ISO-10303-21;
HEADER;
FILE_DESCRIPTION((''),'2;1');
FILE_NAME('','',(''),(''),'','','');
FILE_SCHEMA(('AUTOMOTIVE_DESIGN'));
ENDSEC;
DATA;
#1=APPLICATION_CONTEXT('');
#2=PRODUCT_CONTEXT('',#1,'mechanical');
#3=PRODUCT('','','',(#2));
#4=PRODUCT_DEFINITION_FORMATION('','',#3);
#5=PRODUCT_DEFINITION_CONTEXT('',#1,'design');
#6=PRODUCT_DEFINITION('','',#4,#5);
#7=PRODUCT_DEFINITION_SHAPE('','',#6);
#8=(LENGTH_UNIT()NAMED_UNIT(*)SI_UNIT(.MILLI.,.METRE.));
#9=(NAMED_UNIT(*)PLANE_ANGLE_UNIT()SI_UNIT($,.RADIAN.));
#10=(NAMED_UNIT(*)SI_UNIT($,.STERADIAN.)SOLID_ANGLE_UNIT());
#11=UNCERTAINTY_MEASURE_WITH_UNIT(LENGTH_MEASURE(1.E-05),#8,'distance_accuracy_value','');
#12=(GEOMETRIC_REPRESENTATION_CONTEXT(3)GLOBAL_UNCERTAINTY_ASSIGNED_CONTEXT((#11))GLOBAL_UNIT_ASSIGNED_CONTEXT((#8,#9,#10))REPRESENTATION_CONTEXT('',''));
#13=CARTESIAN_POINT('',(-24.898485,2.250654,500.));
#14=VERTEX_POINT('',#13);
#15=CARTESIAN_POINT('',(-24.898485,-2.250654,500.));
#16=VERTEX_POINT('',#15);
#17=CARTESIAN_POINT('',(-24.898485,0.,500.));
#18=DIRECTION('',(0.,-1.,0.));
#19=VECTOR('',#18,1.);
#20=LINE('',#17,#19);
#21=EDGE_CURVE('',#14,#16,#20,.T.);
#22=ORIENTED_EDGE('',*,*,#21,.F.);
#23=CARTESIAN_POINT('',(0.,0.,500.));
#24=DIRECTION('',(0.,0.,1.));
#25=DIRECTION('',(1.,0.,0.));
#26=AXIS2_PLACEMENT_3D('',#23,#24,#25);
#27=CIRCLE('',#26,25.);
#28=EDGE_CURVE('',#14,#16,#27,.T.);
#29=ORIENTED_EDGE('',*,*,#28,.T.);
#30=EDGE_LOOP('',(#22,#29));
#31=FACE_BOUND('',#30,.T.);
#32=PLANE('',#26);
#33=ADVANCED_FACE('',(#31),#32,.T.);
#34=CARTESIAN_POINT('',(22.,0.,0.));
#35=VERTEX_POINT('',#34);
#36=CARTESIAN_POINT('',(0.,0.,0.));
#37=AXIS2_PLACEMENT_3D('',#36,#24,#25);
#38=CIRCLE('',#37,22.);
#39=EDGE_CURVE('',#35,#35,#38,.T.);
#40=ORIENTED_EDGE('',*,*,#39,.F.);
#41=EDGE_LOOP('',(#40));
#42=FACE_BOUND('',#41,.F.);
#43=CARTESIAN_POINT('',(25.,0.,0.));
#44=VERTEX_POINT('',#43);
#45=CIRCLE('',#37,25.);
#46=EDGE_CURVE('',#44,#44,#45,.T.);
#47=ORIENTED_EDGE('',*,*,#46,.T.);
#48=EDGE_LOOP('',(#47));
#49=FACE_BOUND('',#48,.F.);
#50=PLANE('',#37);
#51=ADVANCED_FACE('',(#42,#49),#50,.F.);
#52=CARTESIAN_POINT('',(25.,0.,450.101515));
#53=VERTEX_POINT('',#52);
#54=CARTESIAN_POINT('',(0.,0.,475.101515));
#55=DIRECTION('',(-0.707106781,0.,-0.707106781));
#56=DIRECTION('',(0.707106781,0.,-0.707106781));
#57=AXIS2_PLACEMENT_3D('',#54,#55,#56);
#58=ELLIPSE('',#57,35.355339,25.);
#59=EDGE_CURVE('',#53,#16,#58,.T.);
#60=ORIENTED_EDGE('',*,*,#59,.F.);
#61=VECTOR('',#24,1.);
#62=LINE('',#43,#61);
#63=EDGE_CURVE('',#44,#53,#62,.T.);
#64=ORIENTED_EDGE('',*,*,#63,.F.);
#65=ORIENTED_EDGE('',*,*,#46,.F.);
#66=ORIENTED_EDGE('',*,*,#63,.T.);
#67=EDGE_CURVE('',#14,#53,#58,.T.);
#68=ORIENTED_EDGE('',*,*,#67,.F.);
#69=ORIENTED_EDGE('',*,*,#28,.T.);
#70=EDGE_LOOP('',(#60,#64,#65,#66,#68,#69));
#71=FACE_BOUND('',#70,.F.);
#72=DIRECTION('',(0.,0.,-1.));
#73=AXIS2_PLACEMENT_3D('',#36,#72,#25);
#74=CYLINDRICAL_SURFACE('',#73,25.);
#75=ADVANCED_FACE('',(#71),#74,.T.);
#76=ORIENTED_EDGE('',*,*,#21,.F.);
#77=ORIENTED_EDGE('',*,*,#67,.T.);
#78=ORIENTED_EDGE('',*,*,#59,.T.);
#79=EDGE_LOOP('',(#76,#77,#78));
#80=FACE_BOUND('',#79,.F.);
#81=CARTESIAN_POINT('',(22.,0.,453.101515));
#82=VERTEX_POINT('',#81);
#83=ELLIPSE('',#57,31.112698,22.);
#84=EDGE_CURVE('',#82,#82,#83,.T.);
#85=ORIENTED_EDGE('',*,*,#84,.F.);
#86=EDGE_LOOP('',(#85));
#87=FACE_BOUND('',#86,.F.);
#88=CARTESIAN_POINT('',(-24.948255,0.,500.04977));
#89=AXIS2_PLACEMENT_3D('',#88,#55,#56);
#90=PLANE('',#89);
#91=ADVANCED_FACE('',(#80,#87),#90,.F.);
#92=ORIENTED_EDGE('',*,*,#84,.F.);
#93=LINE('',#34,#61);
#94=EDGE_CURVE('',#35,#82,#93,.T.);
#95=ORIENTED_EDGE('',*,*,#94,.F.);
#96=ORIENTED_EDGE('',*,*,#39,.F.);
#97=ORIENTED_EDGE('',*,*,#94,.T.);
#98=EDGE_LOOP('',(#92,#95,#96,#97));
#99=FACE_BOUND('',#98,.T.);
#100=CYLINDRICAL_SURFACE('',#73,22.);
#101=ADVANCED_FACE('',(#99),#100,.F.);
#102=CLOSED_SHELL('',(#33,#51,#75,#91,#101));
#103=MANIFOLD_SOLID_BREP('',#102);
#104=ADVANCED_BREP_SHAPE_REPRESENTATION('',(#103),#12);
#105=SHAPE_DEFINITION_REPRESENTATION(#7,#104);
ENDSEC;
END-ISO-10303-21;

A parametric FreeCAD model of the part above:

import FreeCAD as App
import Part
import Sketcher
from FreeCAD import Vector


def add_polygon(sketch, points):
    """Adds a closed chain of lines whose ends are joined by coincident constraints."""
    first, n = sketch.GeometryCount, len(points)
    for a, b in zip(points, points[1:] + points[:1]):
        sketch.addGeometry(Part.LineSegment(App.Vector(*a, 0), App.Vector(*b, 0)), False)
    for i in range(n):
        sketch.addConstraint(Sketcher.Constraint("Coincident", first + i, 2, first + (i + 1) % n, 1))

doc = App.newDocument("Part")
params = doc.addObject("Spreadsheet::Sheet", "Params")
for row, (alias, value) in enumerate([
    ("sketch1_diameter", "50 mm"),
    ("sketch1_diameter2", "44 mm"),
    ("pad1_length", "500 mm"),
    ("sketch2_width", "50 mm"),
    ("pocket1_length", "80 mm"),
], start=1):
    params.set(f"A{row}", alias)
    params.set(f"B{row}", "=" + value)
    params.setAlias(f"B{row}", alias)

body = doc.addObject("PartDesign::Body", "Body")

# Sketch on XY plane
sketch1 = body.newObject("Sketcher::SketchObject", "Sketch")
sketch1.AttachmentSupport = (doc.getObject("XY_Plane"), [""])
sketch1.MapMode = "FlatFace"
sketch1.addGeometry(Part.Circle(Vector(0, 0, 0), Vector(0, 0, 1), 25), False)
sketch1.addGeometry(Part.Circle(Vector(0, 0, 0), Vector(0, 0, 1), 22), False)
sketch1.addConstraint(Sketcher.Constraint("Coincident", 0, 3, -1, 1))
sketch1.addConstraint(Sketcher.Constraint("Coincident", 1, 3, -1, 1))
sketch1.addConstraint(Sketcher.Constraint("Diameter", 0, 50.0))
sketch1.addConstraint(Sketcher.Constraint("Diameter", 1, 44.0))
sketch1.setExpression("Constraints[2]", "Params.sketch1_diameter")
sketch1.setExpression("Constraints[3]", "Params.sketch1_diameter2")
pad1 = body.newObject("PartDesign::Pad", "Pad")
pad1.Profile = sketch1
pad1.setExpression("Length", "Params.pad1_length")

# Sketch on XZ plane
sketch2 = body.newObject("Sketcher::SketchObject", "Sketch001")
sketch2.AttachmentSupport = (doc.getObject("XZ_Plane"), [""])
sketch2.MapMode = "FlatFace"
add_polygon(sketch2, [(25, 500), (-25, 500), (25, 450)])  # lines 0-2
sketch2.addConstraint(Sketcher.Constraint("Horizontal", 0))
sketch2.addConstraint(Sketcher.Constraint("Vertical", 2))
sketch2.addConstraint(Sketcher.Constraint("Equal", 0, 2))
sketch2.addConstraint(Sketcher.Constraint("DistanceX", 0, 2, 0, 1, 50.0))
sketch2.addConstraint(Sketcher.Constraint("DistanceY", -1, 1, 0, 2, 500.04977))
sketch2.addConstraint(Sketcher.Constraint("DistanceX", 0, 2, -1, 1, 24.948255))
sketch2.setExpression("Constraints[6]", "Params.sketch2_width")
pocket1 = body.newObject("PartDesign::Pocket", "Pocket")
pocket1.Profile = sketch2
pocket1.setExpression("Length", "Params.pocket1_length")
pocket1.Midplane = True

doc.recompute()
